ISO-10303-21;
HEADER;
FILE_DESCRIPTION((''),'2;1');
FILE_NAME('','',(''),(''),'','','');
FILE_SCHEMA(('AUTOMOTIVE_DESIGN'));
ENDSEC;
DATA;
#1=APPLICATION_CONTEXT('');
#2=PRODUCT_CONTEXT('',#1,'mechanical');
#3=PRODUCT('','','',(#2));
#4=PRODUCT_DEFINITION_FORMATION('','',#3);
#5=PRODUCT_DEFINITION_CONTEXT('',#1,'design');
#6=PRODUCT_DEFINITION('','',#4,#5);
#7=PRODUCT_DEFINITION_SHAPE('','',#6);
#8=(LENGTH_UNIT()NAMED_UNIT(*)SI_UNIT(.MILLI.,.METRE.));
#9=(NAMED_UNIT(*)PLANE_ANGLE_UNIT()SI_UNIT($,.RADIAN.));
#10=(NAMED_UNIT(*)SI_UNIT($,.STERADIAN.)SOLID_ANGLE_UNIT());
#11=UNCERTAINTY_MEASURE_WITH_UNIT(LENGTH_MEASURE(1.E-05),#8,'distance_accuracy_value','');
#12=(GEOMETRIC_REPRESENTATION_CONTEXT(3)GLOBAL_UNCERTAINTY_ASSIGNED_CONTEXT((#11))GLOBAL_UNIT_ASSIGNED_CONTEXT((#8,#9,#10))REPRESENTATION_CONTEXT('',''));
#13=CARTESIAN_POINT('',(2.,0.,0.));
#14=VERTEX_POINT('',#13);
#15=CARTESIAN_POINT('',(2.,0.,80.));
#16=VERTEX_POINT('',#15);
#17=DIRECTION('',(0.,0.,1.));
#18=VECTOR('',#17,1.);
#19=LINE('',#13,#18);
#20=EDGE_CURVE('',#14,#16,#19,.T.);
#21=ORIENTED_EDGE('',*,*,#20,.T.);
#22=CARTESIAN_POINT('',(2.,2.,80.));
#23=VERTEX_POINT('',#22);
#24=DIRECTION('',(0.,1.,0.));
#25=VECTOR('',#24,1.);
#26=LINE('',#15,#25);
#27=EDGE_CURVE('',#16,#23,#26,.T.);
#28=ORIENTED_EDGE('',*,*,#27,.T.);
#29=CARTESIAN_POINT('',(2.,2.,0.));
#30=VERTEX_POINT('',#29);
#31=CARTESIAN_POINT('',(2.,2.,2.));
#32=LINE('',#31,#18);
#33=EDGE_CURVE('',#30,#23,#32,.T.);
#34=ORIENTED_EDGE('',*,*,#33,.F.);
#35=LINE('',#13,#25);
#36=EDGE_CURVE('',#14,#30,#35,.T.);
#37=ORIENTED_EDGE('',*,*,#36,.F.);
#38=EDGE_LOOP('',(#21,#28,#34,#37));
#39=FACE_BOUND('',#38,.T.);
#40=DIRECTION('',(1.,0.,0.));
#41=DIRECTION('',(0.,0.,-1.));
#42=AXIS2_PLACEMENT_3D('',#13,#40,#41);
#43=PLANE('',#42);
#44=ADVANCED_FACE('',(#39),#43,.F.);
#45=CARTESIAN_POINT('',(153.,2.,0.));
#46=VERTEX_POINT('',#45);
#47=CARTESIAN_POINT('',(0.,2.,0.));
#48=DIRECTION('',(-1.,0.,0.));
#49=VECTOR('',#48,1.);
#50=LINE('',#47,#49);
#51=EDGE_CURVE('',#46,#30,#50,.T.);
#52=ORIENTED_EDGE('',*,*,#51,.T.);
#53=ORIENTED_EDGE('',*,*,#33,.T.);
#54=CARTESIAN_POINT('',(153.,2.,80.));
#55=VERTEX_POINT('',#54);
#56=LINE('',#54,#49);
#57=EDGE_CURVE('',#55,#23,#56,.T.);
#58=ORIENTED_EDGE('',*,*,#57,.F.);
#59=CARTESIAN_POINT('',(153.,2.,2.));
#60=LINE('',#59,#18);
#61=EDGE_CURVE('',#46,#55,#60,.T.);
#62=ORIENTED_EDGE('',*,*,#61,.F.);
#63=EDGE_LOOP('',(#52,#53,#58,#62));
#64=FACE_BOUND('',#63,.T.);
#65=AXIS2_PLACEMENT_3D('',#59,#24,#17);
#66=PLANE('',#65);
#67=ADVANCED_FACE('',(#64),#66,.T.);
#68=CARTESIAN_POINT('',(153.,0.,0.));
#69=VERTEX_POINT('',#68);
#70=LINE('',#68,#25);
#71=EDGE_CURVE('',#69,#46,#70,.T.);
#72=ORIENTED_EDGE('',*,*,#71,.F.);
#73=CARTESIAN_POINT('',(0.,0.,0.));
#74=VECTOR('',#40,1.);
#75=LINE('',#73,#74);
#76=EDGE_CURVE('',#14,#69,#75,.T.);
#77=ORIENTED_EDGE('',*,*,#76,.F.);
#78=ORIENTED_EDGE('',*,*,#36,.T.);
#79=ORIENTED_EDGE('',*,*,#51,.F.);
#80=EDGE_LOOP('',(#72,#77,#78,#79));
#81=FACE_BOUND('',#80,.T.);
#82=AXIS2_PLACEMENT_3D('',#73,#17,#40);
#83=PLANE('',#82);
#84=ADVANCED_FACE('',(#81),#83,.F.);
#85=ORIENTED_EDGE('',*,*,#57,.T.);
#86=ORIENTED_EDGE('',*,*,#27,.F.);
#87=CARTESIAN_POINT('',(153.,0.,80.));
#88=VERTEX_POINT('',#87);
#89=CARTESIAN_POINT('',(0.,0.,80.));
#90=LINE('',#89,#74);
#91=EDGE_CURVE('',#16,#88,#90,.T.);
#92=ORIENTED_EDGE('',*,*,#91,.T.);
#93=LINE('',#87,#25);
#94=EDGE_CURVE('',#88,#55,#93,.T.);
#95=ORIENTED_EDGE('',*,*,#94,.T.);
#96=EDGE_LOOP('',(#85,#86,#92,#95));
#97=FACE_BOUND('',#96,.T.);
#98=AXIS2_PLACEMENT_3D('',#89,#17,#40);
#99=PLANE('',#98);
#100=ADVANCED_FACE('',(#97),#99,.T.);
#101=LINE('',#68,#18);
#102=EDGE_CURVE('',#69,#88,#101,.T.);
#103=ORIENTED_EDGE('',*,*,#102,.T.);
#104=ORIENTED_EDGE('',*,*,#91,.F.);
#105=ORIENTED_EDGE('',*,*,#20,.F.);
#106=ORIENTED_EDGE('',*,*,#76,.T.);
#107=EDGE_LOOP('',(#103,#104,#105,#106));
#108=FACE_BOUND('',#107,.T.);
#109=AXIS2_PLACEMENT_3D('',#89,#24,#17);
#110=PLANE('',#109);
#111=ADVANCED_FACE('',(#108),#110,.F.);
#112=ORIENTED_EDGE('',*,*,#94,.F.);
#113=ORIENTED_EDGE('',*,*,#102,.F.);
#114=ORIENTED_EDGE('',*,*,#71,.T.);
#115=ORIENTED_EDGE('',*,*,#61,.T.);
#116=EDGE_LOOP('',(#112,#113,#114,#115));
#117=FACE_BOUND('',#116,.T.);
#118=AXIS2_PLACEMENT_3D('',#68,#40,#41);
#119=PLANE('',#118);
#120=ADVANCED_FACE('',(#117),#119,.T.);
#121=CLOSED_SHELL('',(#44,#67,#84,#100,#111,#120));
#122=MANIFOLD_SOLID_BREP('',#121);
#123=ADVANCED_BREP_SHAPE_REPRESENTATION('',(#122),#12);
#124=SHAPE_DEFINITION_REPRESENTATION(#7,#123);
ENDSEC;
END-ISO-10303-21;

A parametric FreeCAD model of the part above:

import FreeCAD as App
import Part
import Sketcher


def add_polygon(sketch, points):
    """Adds a closed chain of lines whose ends are joined by coincident constraints."""
    first, n = sketch.GeometryCount, len(points)
    for a, b in zip(points, points[1:] + points[:1]):
        sketch.addGeometry(Part.LineSegment(App.Vector(*a, 0), App.Vector(*b, 0)), False)
    for i in range(n):
        sketch.addConstraint(Sketcher.Constraint("Coincident", first + i, 2, first + (i + 1) % n, 1))

doc = App.newDocument("Part")
body = doc.addObject("PartDesign::Body", "Body")

sketch1 = body.newObject("Sketcher::SketchObject", "Sketch")
sketch1.AttachmentSupport = (doc.getObject("XY_Plane"), [""])
sketch1.MapMode = "FlatFace"
add_polygon(sketch1, [(0, 110), (0, 0), (155, 0), (155, 110)])
sketch1.addConstraint([
    Sketcher.Constraint("Vertical", 0),
    Sketcher.Constraint("Horizontal", 1),
    Sketcher.Constraint("Vertical", 2),
    Sketcher.Constraint("Horizontal", 3),
    Sketcher.Constraint("Coincident", 0, 2, -1, 1),
    Sketcher.Constraint("DistanceX", 1, 1, 1, 2, 155.0),
    Sketcher.Constraint("DistanceY", 0, 2, 0, 1, 110.0),
])
pad1 = body.newObject("PartDesign::Pad", "Pad")
pad1.Profile = sketch1
pad1.Length = 80

sketch2 = body.newObject("Sketcher::SketchObject", "Sketch001")
sketch2.AttachmentSupport = (doc.getObject("XY_Plane"), [""])
sketch2.MapMode = "FlatFace"
sketch2.AttachmentOffset = App.Placement(App.Vector(0, 0, 80), App.Rotation())
add_polygon(sketch2, [(2, 108), (2, 2), (153, 2), (153, 108)])
sketch2.addConstraint([
    Sketcher.Constraint("Vertical", 0),
    Sketcher.Constraint("Horizontal", 1),
    Sketcher.Constraint("Vertical", 2),
    Sketcher.Constraint("Horizontal", 3),
    Sketcher.Constraint("DistanceX", 1, 1, 1, 2, 151.0),
    Sketcher.Constraint("DistanceY", 0, 2, 0, 1, 106.0),
    Sketcher.Constraint("DistanceX", -1, 1, 0, 2, 2.0),
    Sketcher.Constraint("DistanceY", -1, 1, 0, 2, 2.0),
])
pocket1 = body.newObject("PartDesign::Pocket", "Pocket")
pocket1.Profile = sketch2
pocket1.Length = 78

sketch3 = body.newObject("Sketcher::SketchObject", "Sketch002")
sketch3.AttachmentSupport = (doc.getObject("XY_Plane"), [""])
sketch3.MapMode = "FlatFace"
sketch3.AttachmentOffset = App.Placement(App.Vector(0, 0, 2), App.Rotation())
sketch3.addGeometry([
    Part.Circle(App.Vector(145, 100.5, 0), App.Vector(0, 0, 1), 2.5),
    Part.Circle(App.Vector(145, 9.5, 0), App.Vector(0, 0, 1), 2.5),
    Part.Circle(App.Vector(10, 9.5, 0), App.Vector(0, 0, 1), 2.5),
    Part.Circle(App.Vector(10, 100.5, 0), App.Vector(0, 0, 1), 2.5),
], False)
sketch3.addConstraint([
    Sketcher.Constraint("Equal", 0, 1),
    Sketcher.Constraint("Equal", 1, 2),
    Sketcher.Constraint("Equal", 2, 3),
    Sketcher.Constraint("Horizontal", 1, 3, 2, 3),
    Sketcher.Constraint("Horizontal", 0, 3, 3, 3),
    Sketcher.Constraint("Vertical", 0, 3, 1, 3),
    Sketcher.Constraint("Vertical", 2, 3, 3, 3),
    Sketcher.Constraint("Diameter", 0, 5.0),
    Sketcher.Constraint("DistanceX", -1, 1, 0, 3, 145.0),
    Sketcher.Constraint("DistanceX", -1, 1, 2, 3, 10.0),
    Sketcher.Constraint("DistanceY", 1, 3, 0, 3, 91.0),
    Sketcher.Constraint("DistanceY", -1, 1, 0, 3, 100.5),
])
pocket2 = body.newObject("PartDesign::Pocket", "Pocket001")
pocket2.Profile = sketch3
pocket2.Length = 2

sketch4 = body.newObject("Sketcher::SketchObject", "Sketch003")
sketch4.AttachmentSupport = (doc.getObject("XZ_Plane"), [""])
sketch4.MapMode = "FlatFace"
sketch4.AttachmentOffset = App.Placement(App.Vector(0, 0, -110), App.Rotation())
sketch4.addGeometry([
    Part.Circle(App.Vector(44.5, 20.1, 0), App.Vector(0, 0, 1), 1.6),
    Part.Circle(App.Vector(95.3, 17.1, 0), App.Vector(0, 0, 1), 1.6),
    Part.Circle(App.Vector(95.3, 62.9, 0), App.Vector(0, 0, 1), 1.6),
    Part.Circle(App.Vector(44.5, 47.6, 0), App.Vector(0, 0, 1), 1.6),
], False)
sketch4.addConstraint([
    Sketcher.Constraint("Equal", 0, 1),
    Sketcher.Constraint("Equal", 1, 2),
    Sketcher.Constraint("Equal", 2, 3),
    Sketcher.Constraint("Vertical", 1, 3, 2, 3),
    Sketcher.Constraint("Vertical", 0, 3, 3, 3),
    Sketcher.Constraint("Diameter", 0, 3.2),
    Sketcher.Constraint("DistanceX", 0, 3, 1, 3, 50.8),
    Sketcher.Constraint("DistanceX", -1, 1, 0, 3, 44.48),
    Sketcher.Constraint("DistanceY", -1, 1, 1, 3, 17.14),
    Sketcher.Constraint("DistanceY", -1, 1, 2, 3, 62.86),
    Sketcher.Constraint("DistanceY", -1, 1, 3, 3, 47.62),
    Sketcher.Constraint("DistanceY", -1, 1, 0, 3, 20.144504),
])
pocket3 = body.newObject("PartDesign::Pocket", "Pocket002")
pocket3.Profile = sketch4
pocket3.Length = 2
pocket3.Reversed = True

sketch5 = body.newObject("Sketcher::SketchObject", "Sketch004")
sketch5.AttachmentSupport = (doc.getObject("YZ_Plane"), [""])
sketch5.MapMode = "FlatFace"
sketch5.AttachmentOffset = App.Placement(App.Vector(0, 0, 155), App.Rotation())
add_polygon(sketch5, [(106, 54), (59, 54), (59, 26), (106, 26)])
sketch5.addConstraint([
    Sketcher.Constraint("Horizontal", 0),
    Sketcher.Constraint("Vertical", 1),
    Sketcher.Constraint("Horizontal", 2),
    Sketcher.Constraint("Vertical", 3),
    Sketcher.Constraint("DistanceX", 0, 2, 0, 1, 46.8),
    Sketcher.Constraint("DistanceY", 1, 2, 1, 1, 27.5),
    Sketcher.Constraint("DistanceX", -1, 1, 0, 2, 59.1),
    Sketcher.Constraint("DistanceY", -1, 1, 0, 2, 53.75),
])
pocket4 = body.newObject("PartDesign::Pocket", "Pocket003")
pocket4.Profile = sketch5
pocket4.Length = 2

sketch6 = body.newObject("Sketcher::SketchObject", "Sketch005")
sketch6.AttachmentSupport = (doc.getObject("YZ_Plane"), [""])
sketch6.MapMode = "FlatFace"
sketch6.AttachmentOffset = App.Placement(App.Vector(0, 0, 155), App.Rotation())
add_polygon(sketch6, [(55, 70), (2, 70), (2, 66), (55, 66)])
add_polygon(sketch6, [(55, 78), (2, 78), (2, 74), (55, 74)])
add_polygon(sketch6, [(55, 62), (2, 62), (2, 58), (55, 58)])
add_polygon(sketch6, [(55, 54), (2, 54), (2, 50), (55, 50)])
add_polygon(sketch6, [(55, 46), (2, 46), (2, 42), (55, 42)])
add_polygon(sketch6, [(55, 38), (2, 38), (2, 34), (55, 34)])
add_polygon(sketch6, [(55, 30), (2, 30), (2, 26), (55, 26)])
add_polygon(sketch6, [(55, 22), (2, 22), (2, 18), (55, 18)])
add_polygon(sketch6, [(55, 14), (2, 14), (2, 10), (55, 10)])
add_polygon(sketch6, [(55, 6), (2, 6), (2, 2), (55, 2)])
sketch6.addConstraint([
    Sketcher.Constraint("Horizontal", 0),
    Sketcher.Constraint("Vertical", 1),
    Sketcher.Constraint("Horizontal", 2),
    Sketcher.Constraint("Vertical", 3),
    Sketcher.Constraint("Horizontal", 4),
    Sketcher.Constraint("Vertical", 5),
    Sketcher.Constraint("Horizontal", 6),
    Sketcher.Constraint("Vertical", 7),
    Sketcher.Constraint("Horizontal", 8),
    Sketcher.Constraint("Vertical", 9),
    Sketcher.Constraint("Horizontal", 10),
    Sketcher.Constraint("Vertical", 11),
    Sketcher.Constraint("Horizontal", 12),
    Sketcher.Constraint("Vertical", 13),
    Sketcher.Constraint("Horizontal", 14),
    Sketcher.Constraint("Vertical", 15),
    Sketcher.Constraint("Horizontal", 16),
    Sketcher.Constraint("Vertical", 17),
    Sketcher.Constraint("Horizontal", 18),
    Sketcher.Constraint("Vertical", 19),
    Sketcher.Constraint("Horizontal", 20),
    Sketcher.Constraint("Vertical", 21),
    Sketcher.Constraint("Horizontal", 22),
    Sketcher.Constraint("Vertical", 23),
    Sketcher.Constraint("Horizontal", 24),
    Sketcher.Constraint("Vertical", 25),
    Sketcher.Constraint("Horizontal", 26),
    Sketcher.Constraint("Vertical", 27),
    Sketcher.Constraint("Horizontal", 28),
    Sketcher.Constraint("Vertical", 29),
    Sketcher.Constraint("Horizontal", 30),
    Sketcher.Constraint("Vertical", 31),
    Sketcher.Constraint("Horizontal", 32),
    Sketcher.Constraint("Vertical", 33),
    Sketcher.Constraint("Horizontal", 34),
    Sketcher.Constraint("Vertical", 35),
    Sketcher.Constraint("Horizontal", 36),
    Sketcher.Constraint("Vertical", 37),
    Sketcher.Constraint("Horizontal", 38),
    Sketcher.Constraint("Vertical", 39),
    Sketcher.Constraint("Vertical", 1, 2, 4, 2),
    Sketcher.Constraint("Vertical", 3, 2, 6, 2),
    Sketcher.Constraint("Vertical", 5, 2, 8, 2),
    Sketcher.Constraint("Vertical", 7, 2, 10, 2),
    Sketcher.Constraint("Vertical", 9, 2, 12, 2),
    Sketcher.Constraint("Vertical", 11, 2, 14, 2),
    Sketcher.Constraint("Vertical", 13, 2, 16, 2),
    Sketcher.Constraint("Vertical", 15, 2, 18, 2),
    Sketcher.Constraint("Vertical", 17, 2, 20, 2),
    Sketcher.Constraint("Vertical", 19, 2, 22, 2),
    Sketcher.Constraint("Vertical", 21, 2, 24, 2),
    Sketcher.Constraint("Vertical", 23, 2, 26, 2),
    Sketcher.Constraint("Vertical", 25, 2, 28, 2),
    Sketcher.Constraint("Vertical", 27, 2, 30, 2),
    Sketcher.Constraint("Vertical", 29, 2, 32, 2),
    Sketcher.Constraint("Vertical", 31, 2, 34, 2),
    Sketcher.Constraint("Vertical", 33, 2, 36, 2),
    Sketcher.Constraint("Vertical", 35, 2, 38, 2),
    Sketcher.Constraint("Equal", 3, 5),
    Sketcher.Constraint("Equal", 7, 9),
    Sketcher.Constraint("Equal", 11, 13),
    Sketcher.Constraint("Equal", 15, 17),
    Sketcher.Constraint("Equal", 19, 21),
    Sketcher.Constraint("Equal", 23, 25),
    Sketcher.Constraint("Equal", 27, 29),
    Sketcher.Constraint("Equal", 31, 33),
    Sketcher.Constraint("Equal", 35, 37),
    Sketcher.Constraint("DistanceX", 0, 2, 0, 1, 53.0),
    Sketcher.Constraint("DistanceY", 1, 2, 1, 1, 4.0),
    Sketcher.Constraint("DistanceX", -1, 1, 0, 2, 2.0),
    Sketcher.Constraint("DistanceY", -1, 1, 0, 2, 70.0),
    Sketcher.Constraint("DistanceY", -1, 1, 4, 2, 78.0),
    Sketcher.Constraint("DistanceY", -1, 1, 8, 2, 62.0),
    Sketcher.Constraint("DistanceY", -1, 1, 12, 2, 54.0),
    Sketcher.Constraint("DistanceY", -1, 1, 16, 2, 46.0),
    Sketcher.Constraint("DistanceY", -1, 1, 20, 2, 38.0),
    Sketcher.Constraint("DistanceY", -1, 1, 24, 2, 30.0),
    Sketcher.Constraint("DistanceY", -1, 1, 28, 2, 22.0),
    Sketcher.Constraint("DistanceY", -1, 1, 32, 2, 14.0),
    Sketcher.Constraint("DistanceY", -1, 1, 36, 2, 6.0),
])
pocket5 = body.newObject("PartDesign::Pocket", "Pocket004")
pocket5.Profile = sketch6
pocket5.Length = 2

sketch7 = body.newObject("Sketcher::SketchObject", "Sketch006")
sketch7.AttachmentSupport = (doc.getObject("XZ_Plane"), [""])
sketch7.MapMode = "FlatFace"
sketch7.AttachmentOffset = App.Placement(App.Vector(0, 0, -110), App.Rotation())
add_polygon(sketch7, [(113, 12), (113, 26), (127, 26), (127, 12)])
sketch7.addConstraint([
    Sketcher.Constraint("Vertical", 0),
    Sketcher.Constraint("Horizontal", 1),
    Sketcher.Constraint("Vertical", 2),
    Sketcher.Constraint("Horizontal", 3),
    Sketcher.Constraint("Equal", 3, 0),
    Sketcher.Constraint("DistanceX", 1, 1, 1, 2, 14.0),
    Sketcher.Constraint("DistanceX", -1, 1, 0, 2, 113.0),
    Sketcher.Constraint("DistanceY", -1, 1, 0, 2, 26.0),
])
pocket6 = body.newObject("PartDesign::Pocket", "Pocket005")
pocket6.Profile = sketch7
pocket6.Length = 2
pocket6.Reversed = True

sketch8 = body.newObject("Sketcher::SketchObject", "Sketch007")
sketch8.AttachmentSupport = (doc.getObject("YZ_Plane"), [""])
sketch8.MapMode = "FlatFace"
add_polygon(sketch8, [(90.6, 45.4), (19.4, 45.4), (19.4, 70.6), (90.6, 70.6)])
sketch8.addGeometry(Part.Circle(App.Vector(92.5, 42.5, 0), App.Vector(0, 0, 1), 1.2), False)
sketch8.addGeometry(Part.Circle(App.Vector(92.5, 73.5, 0), App.Vector(0, 0, 1), 1.2), False)
sketch8.addGeometry(Part.Circle(App.Vector(17.5, 42.5, 0), App.Vector(0, 0, 1), 1.2), False)
sketch8.addGeometry(Part.Circle(App.Vector(17.5, 73.5, 0), App.Vector(0, 0, 1), 1.2), False)
sketch8.addConstraint([
    Sketcher.Constraint("Horizontal", 0),
    Sketcher.Constraint("Vertical", 1),
    Sketcher.Constraint("Horizontal", 2),
    Sketcher.Constraint("Vertical", 3),
    Sketcher.Constraint("Equal", 4, 5),
    Sketcher.Constraint("Equal", 5, 6),
    Sketcher.Constraint("Equal", 6, 7),
    Sketcher.Constraint("Horizontal", 4, 3, 6, 3),
    Sketcher.Constraint("Horizontal", 5, 3, 7, 3),
    Sketcher.Constraint("Vertical", 4, 3, 5, 3),
    Sketcher.Constraint("Vertical", 6, 3, 7, 3),
    Sketcher.Constraint("Diameter", 4, 2.5),
    Sketcher.Constraint("DistanceX", 0, 2, 0, 1, 71.2),
    Sketcher.Constraint("DistanceY", 1, 1, 1, 2, 25.2),
    Sketcher.Constraint("DistanceY", 4, 3, 5, 3, 31.0),
    Sketcher.Constraint("DistanceX", 6, 3, 4, 3, 75.0),
    Sketcher.Constraint("DistanceX", -1, 1, 4, 3, 92.5),
    Sketcher.Constraint("DistanceY", -1, 1, 4, 3, 42.5),
    Sketcher.Constraint("DistanceX", -1, 1, 0, 2, 19.4),
    Sketcher.Constraint("DistanceY", -1, 1, 0, 2, 45.4),
])
pocket7 = body.newObject("PartDesign::Pocket", "Pocket006")
pocket7.Profile = sketch8
pocket7.Length = 2
pocket7.Reversed = True

sketch9 = body.newObject("Sketcher::SketchObject", "Sketch008")
sketch9.AttachmentSupport = (doc.getObject("YZ_Plane"), [""])
sketch9.MapMode = "FlatFace"
sketch9.addGeometry([
    Part.Circle(App.Vector(55, 20, 0), App.Vector(0, 0, 1), 2.5),
    Part.Circle(App.Vector(40, 20, 0), App.Vector(0, 0, 1), 2.5),
    Part.Circle(App.Vector(25, 20, 0), App.Vector(0, 0, 1), 2.5),
    Part.Circle(App.Vector(82.5, 20, 0), App.Vector(0, 0, 1), 4.5),
], False)
sketch9.addConstraint([
    Sketcher.Constraint("Equal", 0, 1),
    Sketcher.Constraint("Equal", 1, 2),
    Sketcher.Constraint("Horizontal", 0, 3, 1, 3),
    Sketcher.Constraint("Horizontal", 1, 3, 2, 3),
    Sketcher.Constraint("Horizontal", 2, 3, 3, 3),
    Sketcher.Constraint("Diameter", 0, 5.0),
    Sketcher.Constraint("Diameter", 3, 9.0),
    Sketcher.Constraint("DistanceX", -1, 1, 0, 3, 55.0),
    Sketcher.Constraint("DistanceY", -1, 1, 0, 3, 20.0),
    Sketcher.Constraint("DistanceX", -1, 1, 1, 3, 40.0),
    Sketcher.Constraint("DistanceX", -1, 1, 2, 3, 25.0),
    Sketcher.Constraint("DistanceX", -1, 1, 3, 3, 82.5),
])
pocket8 = body.newObject("PartDesign::Pocket", "Pocket007")
pocket8.Profile = sketch9
pocket8.Length = 2
pocket8.Reversed = True

sketch10 = body.newObject("Sketcher::SketchObject", "Sketch009")
sketch10.AttachmentSupport = (doc.getObject("XY_Plane"), [""])
sketch10.MapMode = "FlatFace"
sketch10.AttachmentOffset = App.Placement(App.Vector(0, 0, 80), App.Rotation())
add_polygon(sketch10, [(153, 0), (155, 0), (155, 110), (0, 110), (0, 0), (2, 0), (2, 2), (153, 2)])
sketch10.addConstraint([
    Sketcher.Constraint("Horizontal", 0),
    Sketcher.Constraint("Vertical", 1),
    Sketcher.Constraint("Horizontal", 2),
    Sketcher.Constraint("Vertical", 3),
    Sketcher.Constraint("Horizontal", 4),
    Sketcher.Constraint("Vertical", 5),
    Sketcher.Constraint("Horizontal", 6),
    Sketcher.Constraint("Vertical", 7),
    Sketcher.Constraint("Coincident", 3, 2, -1, 1),
    Sketcher.Constraint("PointOnObject", 0, 2, -1),
    Sketcher.Constraint("Equal", 0, 4),
    Sketcher.Constraint("Equal", 4, 5),
    Sketcher.Constraint("DistanceX", 0, 1, 0, 2, 2.0),
    Sketcher.Constraint("DistanceX", 2, 2, 2, 1, 155.0),
    Sketcher.Constraint("DistanceY", 1, 1, 1, 2, 110.0),
])
pocket9 = body.newObject("PartDesign::Pocket", "Pocket008")
pocket9.Profile = sketch10
pocket9.Length = 80

doc.recompute()
